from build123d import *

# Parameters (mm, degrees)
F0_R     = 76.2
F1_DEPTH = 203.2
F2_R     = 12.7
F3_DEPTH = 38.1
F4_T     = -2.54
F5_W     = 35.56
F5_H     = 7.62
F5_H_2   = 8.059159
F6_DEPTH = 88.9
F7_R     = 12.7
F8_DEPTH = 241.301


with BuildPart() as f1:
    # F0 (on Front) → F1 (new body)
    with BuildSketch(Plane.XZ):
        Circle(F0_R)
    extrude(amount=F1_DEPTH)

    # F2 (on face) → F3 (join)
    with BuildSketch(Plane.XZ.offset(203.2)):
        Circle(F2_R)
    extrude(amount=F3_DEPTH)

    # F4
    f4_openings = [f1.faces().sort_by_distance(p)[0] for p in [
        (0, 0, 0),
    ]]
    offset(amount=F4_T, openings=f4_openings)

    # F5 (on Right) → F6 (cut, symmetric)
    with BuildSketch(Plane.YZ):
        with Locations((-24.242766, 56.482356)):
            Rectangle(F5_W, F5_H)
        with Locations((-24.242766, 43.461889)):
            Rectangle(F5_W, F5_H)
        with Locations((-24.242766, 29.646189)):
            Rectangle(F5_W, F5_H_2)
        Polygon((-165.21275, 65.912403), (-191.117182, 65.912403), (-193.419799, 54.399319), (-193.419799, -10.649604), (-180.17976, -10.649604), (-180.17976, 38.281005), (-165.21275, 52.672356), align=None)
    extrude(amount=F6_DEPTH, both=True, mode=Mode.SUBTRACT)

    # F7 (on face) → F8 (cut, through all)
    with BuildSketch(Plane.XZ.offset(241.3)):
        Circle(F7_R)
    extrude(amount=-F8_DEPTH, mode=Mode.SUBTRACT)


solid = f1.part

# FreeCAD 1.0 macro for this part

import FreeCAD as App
import Part
import Sketcher
Q = App.Units.Quantity


def faces_at(feature, points):
    """Names of the faces that lie closest to the given points."""
    faces = feature.Shape.Faces
    near = lambda p: min(range(len(faces)), key=lambda i: faces[i].distToShape(Part.Vertex(*p))[0])
    return sorted({f"Face{near(p) + 1}" for p in points})


def add_polygon(sketch, points):
    """Adds a closed chain of lines whose ends are joined by coincident constraints."""
    first, n = sketch.GeometryCount, len(points)
    for a, b in zip(points, points[1:] + points[:1]):
        sketch.addGeometry(Part.LineSegment(App.Vector(*a, 0), App.Vector(*b, 0)), False)
    for i in range(n):
        sketch.addConstraint(Sketcher.Constraint("Coincident", first + i, 2, first + (i + 1) % n, 1))

doc = App.newDocument("Part")
body = doc.addObject("PartDesign::Body", "Body")

sketch1 = doc.addObject("Sketcher::SketchObject", "Sketch")
body.addObject(sketch1)
sketch1.AttachmentSupport = (doc.XZ_Plane, [""])
sketch1.MapMode = "FlatFace"
sketch1.addGeometry(Part.Circle(App.Vector(0, 0, 0), App.Vector(0, 0, 1), 76), False)
sketch1.addConstraint([
    Sketcher.Constraint("Coincident", 0, 3, -1, 1),
    Sketcher.Constraint("Diameter", 0, Q("6 in")),
])
pad1 = doc.addObject("PartDesign::Pad", "Pad")
body.addObject(pad1)
pad1.Profile = sketch1
pad1.Length = Q("8 in")

sketch2 = doc.addObject("Sketcher::SketchObject", "Sketch001")
body.addObject(sketch2)
sketch2.AttachmentSupport = (doc.XZ_Plane, [""])
sketch2.MapMode = "FlatFace"
sketch2.AttachmentOffset = App.Placement(App.Vector(0, 0, 8 * 25.4), App.Rotation())
sketch2.addGeometry(Part.Circle(App.Vector(0, 0, 0), App.Vector(0, 0, 1), 13), False)
sketch2.addConstraint([
    Sketcher.Constraint("Coincident", 0, 3, -1, 1),
    Sketcher.Constraint("Diameter", 0, Q("1 in")),
])
pad2 = doc.addObject("PartDesign::Pad", "Pad001")
body.addObject(pad2)
pad2.Profile = sketch2
pad2.Length = Q("1.5 in")
doc.recompute()

thickness = doc.addObject("PartDesign::Thickness", "Thickness")
body.addObject(thickness)
thickness.Base = (pad2, faces_at(pad2, [(0, 0, 0)]))
thickness.Value = Q("0.1 in")
thickness.Reversed = True
thickness.Join = "Arc"

sketch3 = doc.addObject("Sketcher::SketchObject", "Sketch002")
body.addObject(sketch3)
sketch3.AttachmentSupport = (doc.YZ_Plane, [""])
sketch3.MapMode = "FlatFace"
add_polygon(sketch3, [(-42, 60), (-42, 53), (-6, 53), (-6, 60)])
add_polygon(sketch3, [(-42, 47), (-42, 40), (-6, 40), (-6, 47)])
add_polygon(sketch3, [(-42, 34), (-42, 26), (-6, 26), (-6, 34)])
add_polygon(sketch3, [(-165, 66), (-191, 66), (-193, 54), (-193, -11), (-180, -11), (-180, 38), (-165, 53)])
sketch3.addConstraint([
    Sketcher.Constraint("Vertical", 0),
    Sketcher.Constraint("Horizontal", 1),
    Sketcher.Constraint("Vertical", 2),
    Sketcher.Constraint("Horizontal", 3),
    Sketcher.Constraint("Vertical", 4),
    Sketcher.Constraint("Horizontal", 5),
    Sketcher.Constraint("Vertical", 6),
    Sketcher.Constraint("Horizontal", 7),
    Sketcher.Constraint("Vertical", 8),
    Sketcher.Constraint("Horizontal", 9),
    Sketcher.Constraint("Vertical", 10),
    Sketcher.Constraint("Horizontal", 11),
    Sketcher.Constraint("Horizontal", 12),
    Sketcher.Constraint("Vertical", 14),
    Sketcher.Constraint("Horizontal", 15),
    Sketcher.Constraint("Vertical", 16),
    Sketcher.Constraint("Vertical", 18),
    Sketcher.Constraint("Horizontal", 1, 2, 17, 2),
    Sketcher.Constraint("Vertical", 3, 2, 4, 2),
    Sketcher.Constraint("Vertical", 2, 2, 5, 2),
    Sketcher.Constraint("Vertical", 7, 2, 8, 2),
    Sketcher.Constraint("Vertical", 6, 2, 9, 2),
    Sketcher.Constraint("Equal", 2, 4),
    Sketcher.Constraint("DistanceX", 1, 1, 1, 2, Q("1.4 in")),
    Sketcher.Constraint("DistanceY", 0, 2, 0, 1, Q("0.3 in")),
    Sketcher.Constraint("DistanceX", 15, 1, 15, 2, 13.240039),
    Sketcher.Constraint("DistanceY", 8, 2, 8, 1, 8.059159),
    Sketcher.Constraint("DistanceY", 16, 1, 16, 2, 48.930609),
    Sketcher.Constraint("DistanceX", 13, 2, -1, 1, 193.419799),
    Sketcher.Constraint("Distance", 13, 11.741088),
    Sketcher.Constraint("DistanceX", 12, 2, 12, 1, 25.904432),
    Sketcher.Constraint("DistanceY", 14, 2, 14, 1, 65.048923),
    Sketcher.Constraint("DistanceY", 18, 1, 18, 2, 13.240047),
    Sketcher.Constraint("DistanceY", -1, 1, 4, 2, 39.651889),
    Sketcher.Constraint("DistanceY", -1, 1, 8, 2, 25.616609),
    Sketcher.Constraint("DistanceY", -1, 1, 13, 2, 54.399319),
    Sketcher.Constraint("DistanceX", 17, 2, -1, 1, 165.21275),
    Sketcher.Constraint("DistanceX", 0, 2, -1, 1, 42.022766),
])
pocket1 = doc.addObject("PartDesign::Pocket", "Pocket")
body.addObject(pocket1)
pocket1.Profile = sketch3
pocket1.Length = Q("7 in")
pocket1.Midplane = True

sketch4 = doc.addObject("Sketcher::SketchObject", "Sketch003")
body.addObject(sketch4)
sketch4.AttachmentSupport = (doc.XZ_Plane, [""])
sketch4.MapMode = "FlatFace"
sketch4.AttachmentOffset = App.Placement(App.Vector(0, 0, 9.5 * 25.4), App.Rotation())
sketch4.addGeometry(Part.Circle(App.Vector(0, 0, 0), App.Vector(0, 0, 1), 13), False)
sketch4.addConstraint([
    Sketcher.Constraint("Coincident", 0, 3, -1, 1),
    Sketcher.Constraint("Diameter", 0, Q("1 in")),
])
pocket2 = doc.addObject("PartDesign::Pocket", "Pocket001")
body.addObject(pocket2)
pocket2.Profile = sketch4
pocket2.Type = "ThroughAll"

doc.recompute()
